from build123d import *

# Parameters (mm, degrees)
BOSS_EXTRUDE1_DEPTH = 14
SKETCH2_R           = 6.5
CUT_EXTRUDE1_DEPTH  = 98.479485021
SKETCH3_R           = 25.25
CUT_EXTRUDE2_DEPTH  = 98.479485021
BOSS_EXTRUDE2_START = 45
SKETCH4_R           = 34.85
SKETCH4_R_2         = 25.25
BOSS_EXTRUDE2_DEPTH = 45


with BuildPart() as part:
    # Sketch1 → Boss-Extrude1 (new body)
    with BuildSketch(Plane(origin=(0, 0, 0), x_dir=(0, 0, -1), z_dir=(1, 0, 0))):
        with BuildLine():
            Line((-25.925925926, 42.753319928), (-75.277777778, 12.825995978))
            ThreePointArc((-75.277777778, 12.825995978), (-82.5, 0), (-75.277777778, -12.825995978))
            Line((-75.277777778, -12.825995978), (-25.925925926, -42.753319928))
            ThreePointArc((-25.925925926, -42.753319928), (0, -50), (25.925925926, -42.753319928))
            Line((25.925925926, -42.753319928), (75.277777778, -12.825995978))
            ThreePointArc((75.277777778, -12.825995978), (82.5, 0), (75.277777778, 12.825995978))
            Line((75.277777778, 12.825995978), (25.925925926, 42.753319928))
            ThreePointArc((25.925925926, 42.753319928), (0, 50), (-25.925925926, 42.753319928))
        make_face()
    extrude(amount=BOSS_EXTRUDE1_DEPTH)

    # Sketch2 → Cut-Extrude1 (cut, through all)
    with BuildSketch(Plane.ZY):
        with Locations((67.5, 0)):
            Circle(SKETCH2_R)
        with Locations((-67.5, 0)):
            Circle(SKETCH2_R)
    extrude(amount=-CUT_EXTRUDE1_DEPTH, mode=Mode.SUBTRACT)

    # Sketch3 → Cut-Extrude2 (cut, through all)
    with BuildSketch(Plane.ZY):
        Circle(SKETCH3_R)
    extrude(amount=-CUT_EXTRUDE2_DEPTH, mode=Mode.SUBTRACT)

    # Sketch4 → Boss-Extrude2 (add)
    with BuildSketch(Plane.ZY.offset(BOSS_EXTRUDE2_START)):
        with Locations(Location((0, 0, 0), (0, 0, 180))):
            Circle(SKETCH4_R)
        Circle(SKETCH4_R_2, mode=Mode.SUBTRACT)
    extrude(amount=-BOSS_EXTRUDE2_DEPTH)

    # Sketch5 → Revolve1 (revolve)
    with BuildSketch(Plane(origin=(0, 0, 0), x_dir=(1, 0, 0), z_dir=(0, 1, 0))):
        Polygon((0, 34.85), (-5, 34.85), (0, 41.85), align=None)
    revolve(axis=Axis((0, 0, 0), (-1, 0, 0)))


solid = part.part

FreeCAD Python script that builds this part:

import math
import FreeCAD as App
import Part
import Sketcher

doc = App.newDocument("Part")
body = doc.addObject("PartDesign::Body", "Body")

# Sketch on YZ plane
sketch1 = body.newObject("Sketcher::SketchObject", "Sketch")
sketch1.AttachmentSupport = (doc.getObject("YZ_Plane"), [""])
sketch1.MapMode = "FlatFace"
sketch1.addGeometry([
    Part.LineSegment(App.Vector(42.75332, 25.925926, 0), App.Vector(12.825996, 75.277778, 0)),  # 0
    Part.ArcOfCircle(Part.Circle(App.Vector(0, 67.5, 0), App.Vector(0, 0, 1), 15), math.radians(31.232929), math.radians(148.767071)),  # 1
    Part.LineSegment(App.Vector(-12.825996, 75.277778, 0), App.Vector(-42.75332, 25.925926, 0)),  # 2
    Part.ArcOfCircle(Part.Circle(App.Vector(0, 0, 0), App.Vector(0, 0, 1), 50), math.radians(148.767071), math.radians(211.232929)),  # 3
    Part.LineSegment(App.Vector(-42.75332, -25.925926, 0), App.Vector(-12.825996, -75.277778, 0)),  # 4
    Part.ArcOfCircle(Part.Circle(App.Vector(0, -67.5, 0), App.Vector(0, 0, 1), 15), math.radians(-148.767071), math.radians(-31.232929)),  # 5
    Part.LineSegment(App.Vector(12.825996, -75.277778, 0), App.Vector(42.75332, -25.925926, 0)),  # 6
    Part.ArcOfCircle(Part.Circle(App.Vector(0, 0, 0), App.Vector(0, 0, 1), 50), math.radians(-31.232929), math.radians(31.232929)),  # 7
], False)
sketch1.addConstraint([
    Sketcher.Constraint("Tangent", 0, 2, 1, 1),
    Sketcher.Constraint("Tangent", 1, 2, 2, 1),
    Sketcher.Constraint("Tangent", 2, 2, 3, 1),
    Sketcher.Constraint("Tangent", 3, 2, 4, 1),
    Sketcher.Constraint("Tangent", 4, 2, 5, 1),
    Sketcher.Constraint("Tangent", 5, 2, 6, 1),
    Sketcher.Constraint("Tangent", 6, 2, 7, 1),
    Sketcher.Constraint("Tangent", 7, 2, 0, 1),
    Sketcher.Constraint("Coincident", 3, 3, -1, 1),
    Sketcher.Constraint("Coincident", 7, 3, -1, 1),
    Sketcher.Constraint("Equal", 1, 5),
    Sketcher.Constraint("Equal", 3, 7),
    Sketcher.Constraint("Symmetric", 1, 3, 5, 3, -1, 1),
    Sketcher.Constraint("PointOnObject", 1, 3, -2),
    Sketcher.Constraint("Radius", 1, 15.0),
    Sketcher.Constraint("Radius", 3, 50.0),
    Sketcher.Constraint("DistanceY", 5, 3, 1, 3, 135.0),
])
pad1 = body.newObject("PartDesign::Pad", "Pad")
pad1.Profile = sketch1
pad1.Length = 14

# Sketch on YZ plane
sketch2 = body.newObject("Sketcher::SketchObject", "Sketch001")
sketch2.AttachmentSupport = (doc.getObject("YZ_Plane"), [""])
sketch2.MapMode = "FlatFace"
sketch2.addGeometry([
    Part.Circle(App.Vector(0, 67.5, 0), App.Vector(0, 0, 1), 6.5),
    Part.Circle(App.Vector(0, -67.5, 0), App.Vector(0, 0, 1), 6.5),
], False)
sketch2.addConstraint([
    Sketcher.Constraint("Equal", 0, 1),
    Sketcher.Constraint("Symmetric", 0, 3, 1, 3, -1, 1),
    Sketcher.Constraint("PointOnObject", 0, 3, -2),
    Sketcher.Constraint("Diameter", 0, 13.0),
    Sketcher.Constraint("DistanceY", 1, 3, 0, 3, 135.0),
])
pocket1 = body.newObject("PartDesign::Pocket", "Pocket")
pocket1.Profile = sketch2
pocket1.Type = "ThroughAll"
pocket1.Reversed = True

# Sketch on YZ plane
sketch3 = body.newObject("Sketcher::SketchObject", "Sketch002")
sketch3.AttachmentSupport = (doc.getObject("YZ_Plane"), [""])
sketch3.MapMode = "FlatFace"
sketch3.addGeometry(Part.Circle(App.Vector(0, 0, 0), App.Vector(0, 0, 1), 25.25), False)
sketch3.addConstraint([
    Sketcher.Constraint("Coincident", 0, 3, -1, 1),
    Sketcher.Constraint("Diameter", 0, 50.5),
])
pocket2 = body.newObject("PartDesign::Pocket", "Pocket001")
pocket2.Profile = sketch3
pocket2.Type = "ThroughAll"
pocket2.Reversed = True

# Sketch on YZ plane
sketch4 = body.newObject("Sketcher::SketchObject", "Sketch003")
sketch4.AttachmentSupport = (doc.getObject("YZ_Plane"), [""])
sketch4.MapMode = "FlatFace"
sketch4.AttachmentOffset = App.Placement(App.Vector(0, 0, -45), App.Rotation())
sketch4.addGeometry([
    Part.Circle(App.Vector(0, 0, 0), App.Vector(0, 0, 1), 34.85),
    Part.Circle(App.Vector(0, 0, 0), App.Vector(0, 0, 1), 25.25),
], False)
sketch4.addConstraint([
    Sketcher.Constraint("Coincident", 0, 3, -1, 1),
    Sketcher.Constraint("Coincident", 1, 3, -1, 1),
    Sketcher.Constraint("Diameter", 0, 69.7),
    Sketcher.Constraint("Diameter", 1, 50.5),
])
pad2 = body.newObject("PartDesign::Pad", "Pad001")
pad2.Profile = sketch4
pad2.Length = 45

# Sketch on XZ plane
sketch5 = body.newObject("Sketcher::SketchObject", "Sketch004")
sketch5.AttachmentSupport = (doc.getObject("XZ_Plane"), [""])
sketch5.MapMode = "FlatFace"
sketch5.addGeometry([
    Part.LineSegment(App.Vector(-5, -34.85, 0), App.Vector(0, -34.85, 0)),
    Part.LineSegment(App.Vector(0, -34.85, 0), App.Vector(0, -41.85, 0)),
    Part.LineSegment(App.Vector(0, -41.85, 0), App.Vector(-5, -34.85, 0)),
], False)
sketch5.addConstraint([
    Sketcher.Constraint("Coincident", 0, 2, 1, 1),
    Sketcher.Constraint("Coincident", 1, 2, 2, 1),
    Sketcher.Constraint("Coincident", 2, 2, 0, 1),
    Sketcher.Constraint("Horizontal", 0),
    Sketcher.Constraint("Vertical", 1),
    Sketcher.Constraint("PointOnObject", 0, 2, -2),
    Sketcher.Constraint("DistanceX", 0, 1, 0, 2, 5.0),
    Sketcher.Constraint("DistanceY", 1, 2, 1, 1, 7.0),
    Sketcher.Constraint("DistanceY", 0, 2, -1, 1, 34.85),
])
revolution = body.newObject("PartDesign::Revolution", "Revolution")
revolution.Profile = sketch5
revolution.ReferenceAxis = (sketch5, ["H_Axis"])
revolution.Angle = 360

doc.recompute()
